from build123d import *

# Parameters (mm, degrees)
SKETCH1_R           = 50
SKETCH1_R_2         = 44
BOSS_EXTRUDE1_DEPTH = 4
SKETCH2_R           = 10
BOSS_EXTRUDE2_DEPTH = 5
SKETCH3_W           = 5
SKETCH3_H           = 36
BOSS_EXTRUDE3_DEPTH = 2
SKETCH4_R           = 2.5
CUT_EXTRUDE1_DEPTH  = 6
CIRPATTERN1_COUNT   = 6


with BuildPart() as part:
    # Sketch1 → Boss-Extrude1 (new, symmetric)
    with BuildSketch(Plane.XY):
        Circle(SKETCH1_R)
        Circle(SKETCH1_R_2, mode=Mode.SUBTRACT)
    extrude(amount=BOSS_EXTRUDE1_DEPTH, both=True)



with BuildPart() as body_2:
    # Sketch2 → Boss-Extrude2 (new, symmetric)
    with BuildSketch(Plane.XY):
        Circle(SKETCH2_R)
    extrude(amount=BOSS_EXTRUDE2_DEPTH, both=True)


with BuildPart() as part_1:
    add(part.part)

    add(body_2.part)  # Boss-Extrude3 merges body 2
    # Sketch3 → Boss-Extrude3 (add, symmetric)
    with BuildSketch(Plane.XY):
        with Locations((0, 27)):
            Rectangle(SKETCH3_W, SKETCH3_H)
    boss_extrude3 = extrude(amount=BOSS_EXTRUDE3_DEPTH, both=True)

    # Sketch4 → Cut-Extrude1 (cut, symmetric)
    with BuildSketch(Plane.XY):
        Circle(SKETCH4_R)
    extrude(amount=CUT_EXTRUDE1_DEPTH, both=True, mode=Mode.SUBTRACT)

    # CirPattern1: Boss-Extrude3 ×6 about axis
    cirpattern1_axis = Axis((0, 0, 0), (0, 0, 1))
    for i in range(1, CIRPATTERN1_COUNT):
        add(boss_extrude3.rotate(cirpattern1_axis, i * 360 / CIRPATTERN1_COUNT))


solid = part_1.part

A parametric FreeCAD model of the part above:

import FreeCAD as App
import Part
import Sketcher

V = App.Vector


def add_polygon(sketch, points):
    """Adds a closed chain of lines whose ends are joined by coincident constraints."""
    first, n = sketch.GeometryCount, len(points)
    for a, b in zip(points, points[1:] + points[:1]):
        sketch.addGeometry(Part.LineSegment(App.Vector(*a, 0), App.Vector(*b, 0)), False)
    for i in range(n):
        sketch.addConstraint(Sketcher.Constraint("Coincident", first + i, 2, first + (i + 1) % n, 1))

doc = App.newDocument("Part")
body = doc.addObject("PartDesign::Body", "Body")

# Sketch on XY plane
sketch1 = body.newObject("Sketcher::SketchObject", "Sketch")
sketch1.AttachmentSupport = (doc.getObject("XY_Plane"), [""])
sketch1.MapMode = "FlatFace"
sketch1.addGeometry([
    Part.Circle(V(0, 0, 0), V(0, 0, 1), 50),
    Part.Circle(V(0, 0, 0), V(0, 0, 1), 44),
], False)
sketch1.addConstraint([
    Sketcher.Constraint("Coincident", 0, 3, -1, 1),
    Sketcher.Constraint("Coincident", 1, 3, -1, 1),
    Sketcher.Constraint("Diameter", 0, 100.0),
    Sketcher.Constraint("Diameter", 1, 88.0),
])
pad1 = body.newObject("PartDesign::Pad", "Pad")
pad1.Profile = sketch1
pad1.Length = 8
pad1.Midplane = True
body2 = doc.addObject("PartDesign::Body", "Body001")

# Sketch on XY plane
sketch2 = body2.newObject("Sketcher::SketchObject", "Sketch001")
sketch2.AttachmentSupport = (doc.getObject("XY_Plane001"), [""])
sketch2.MapMode = "FlatFace"
sketch2.addGeometry(Part.Circle(V(0, 0, 0), V(0, 0, 1), 10), False)
sketch2.addConstraint([
    Sketcher.Constraint("Coincident", 0, 3, -1, 1),
    Sketcher.Constraint("Diameter", 0, 20.0),
])
pad2 = body2.newObject("PartDesign::Pad", "Pad001")
pad2.Profile = sketch2
pad2.Length = 10
pad2.Midplane = True
body.AllowCompound = True
doc.recompute()

boolean = body.newObject("PartDesign::Boolean", "Boolean")
boolean.Type = "Fuse"
boolean.addObjects([body2])

# Sketch on XY plane
sketch3 = body.newObject("Sketcher::SketchObject", "Sketch002")
sketch3.AttachmentSupport = (doc.getObject("XY_Plane"), [""])
sketch3.MapMode = "FlatFace"
add_polygon(sketch3, [(-2, 45), (-2, 9), (2, 9), (2, 45)])  # lines 0-3
sketch3.addConstraint([
    Sketcher.Constraint("Vertical", 0),
    Sketcher.Constraint("Horizontal", 1),
    Sketcher.Constraint("Vertical", 2),
    Sketcher.Constraint("Horizontal", 3),
    Sketcher.Constraint("DistanceX", 1, 1, 1, 2, 5.0),
    Sketcher.Constraint("DistanceY", 0, 2, 0, 1, 36.0),
    Sketcher.Constraint("DistanceY", -1, 1, 0, 2, 9.0),
    Sketcher.Constraint("DistanceX", 0, 2, -1, 1, 2.5),
])
pad3 = body.newObject("PartDesign::Pad", "Pad002")
pad3.Profile = sketch3
pad3.Length = 4
pad3.Midplane = True

# Sketch on XY plane
sketch4 = body.newObject("Sketcher::SketchObject", "Sketch003")
sketch4.AttachmentSupport = (doc.getObject("XY_Plane"), [""])
sketch4.MapMode = "FlatFace"
sketch4.addGeometry(Part.Circle(V(0, 0, 0), V(0, 0, 1), 2.5), False)
sketch4.addConstraint([
    Sketcher.Constraint("Coincident", 0, 3, -1, 1),
    Sketcher.Constraint("Diameter", 0, 5.0),
])
pocket1 = body.newObject("PartDesign::Pocket", "Pocket")
pocket1.Profile = sketch4
pocket1.Length = 12
pocket1.Midplane = True
doc.recompute()

polarpattern = body.newObject("PartDesign::PolarPattern", "PolarPattern")
polarpattern.Originals = [pad3]
polarpattern.Axis = (doc.getObject("Z_Axis"), [""])
polarpattern.Angle = 360
polarpattern.Occurrences = 6
body.Tip = polarpattern

doc.recompute()
